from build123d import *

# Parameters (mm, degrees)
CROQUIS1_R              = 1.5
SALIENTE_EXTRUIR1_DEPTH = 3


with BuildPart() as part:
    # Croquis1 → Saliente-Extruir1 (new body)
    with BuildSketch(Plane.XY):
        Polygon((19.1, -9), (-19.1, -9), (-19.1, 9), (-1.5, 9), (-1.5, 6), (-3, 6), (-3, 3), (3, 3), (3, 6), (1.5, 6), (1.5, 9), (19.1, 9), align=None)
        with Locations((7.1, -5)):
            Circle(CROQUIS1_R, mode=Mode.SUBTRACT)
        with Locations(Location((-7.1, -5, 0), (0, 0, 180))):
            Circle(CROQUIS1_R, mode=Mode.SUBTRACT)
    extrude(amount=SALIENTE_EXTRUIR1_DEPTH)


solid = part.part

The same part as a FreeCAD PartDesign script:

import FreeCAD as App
import Part
import Sketcher
from FreeCAD import Vector


def add_polygon(sketch, points):
    """Adds a closed chain of lines whose ends are joined by coincident constraints."""
    first, n = sketch.GeometryCount, len(points)
    for a, b in zip(points, points[1:] + points[:1]):
        sketch.addGeometry(Part.LineSegment(App.Vector(*a, 0), App.Vector(*b, 0)), False)
    for i in range(n):
        sketch.addConstraint(Sketcher.Constraint("Coincident", first + i, 2, first + (i + 1) % n, 1))

doc = App.newDocument("Part")
body = doc.addObject("PartDesign::Body", "Body")

# Sketch on XY plane
sketch1 = body.newObject("Sketcher::SketchObject", "Sketch")
sketch1.AttachmentSupport = (doc.getObject("XY_Plane"), [""])
sketch1.MapMode = "FlatFace"
add_polygon(sketch1, [(-19.1, -9), (19.1, -9), (19.1, 9), (1.5, 9), (1.5, 6), (3, 6), (3, 3), (-3, 3), (-3, 6), (-1.5, 6), (-1.5, 9), (-19.1, 9)])  # lines 0-11
sketch1.addGeometry(Part.Circle(Vector(7.1, -5, 0), Vector(0, 0, 1), 1.5), False)  # 12
sketch1.addGeometry(Part.Circle(Vector(-7.1, -5, 0), Vector(0, 0, 1), 1.5), False)  # 13
sketch1.addConstraint([
    Sketcher.Constraint("Horizontal", 0),
    Sketcher.Constraint("Vertical", 1),
    Sketcher.Constraint("Horizontal", 2),
    Sketcher.Constraint("Vertical", 3),
    Sketcher.Constraint("Horizontal", 4),
    Sketcher.Constraint("Vertical", 5),
    Sketcher.Constraint("Horizontal", 6),
    Sketcher.Constraint("Vertical", 7),
    Sketcher.Constraint("Horizontal", 8),
    Sketcher.Constraint("Vertical", 9),
    Sketcher.Constraint("Horizontal", 10),
    Sketcher.Constraint("Vertical", 11),
    Sketcher.Constraint("Equal", 12, 13),
    Sketcher.Constraint("Symmetric", 0, 2, 10, 2, -1, 1),
    Sketcher.Constraint("Symmetric", 12, 3, 13, 3, -2),
    Sketcher.Constraint("Symmetric", 4, 2, 7, 2, -2),
    Sketcher.Constraint("Symmetric", 2, 2, 9, 2, -2),
    Sketcher.Constraint("Equal", 3, 5),
    Sketcher.Constraint("Diameter", 12, 3.0),
    Sketcher.Constraint("DistanceX", 6, 2, 6, 1, 6.0),
    Sketcher.Constraint("DistanceY", 1, 1, 1, 2, 18.0),
    Sketcher.Constraint("DistanceY", 3, 2, 3, 1, 3.0),
    Sketcher.Constraint("DistanceX", 0, 1, 0, 2, 38.2),
    Sketcher.Constraint("DistanceX", 2, 2, 2, 1, 17.6),
    Sketcher.Constraint("DistanceY", 12, 3, -1, 1, 5.0),
    Sketcher.Constraint("DistanceX", 12, 3, 0, 2, 12.0),
])
pad1 = body.newObject("PartDesign::Pad", "Pad")
pad1.Profile = sketch1
pad1.Length = 3

doc.recompute()
